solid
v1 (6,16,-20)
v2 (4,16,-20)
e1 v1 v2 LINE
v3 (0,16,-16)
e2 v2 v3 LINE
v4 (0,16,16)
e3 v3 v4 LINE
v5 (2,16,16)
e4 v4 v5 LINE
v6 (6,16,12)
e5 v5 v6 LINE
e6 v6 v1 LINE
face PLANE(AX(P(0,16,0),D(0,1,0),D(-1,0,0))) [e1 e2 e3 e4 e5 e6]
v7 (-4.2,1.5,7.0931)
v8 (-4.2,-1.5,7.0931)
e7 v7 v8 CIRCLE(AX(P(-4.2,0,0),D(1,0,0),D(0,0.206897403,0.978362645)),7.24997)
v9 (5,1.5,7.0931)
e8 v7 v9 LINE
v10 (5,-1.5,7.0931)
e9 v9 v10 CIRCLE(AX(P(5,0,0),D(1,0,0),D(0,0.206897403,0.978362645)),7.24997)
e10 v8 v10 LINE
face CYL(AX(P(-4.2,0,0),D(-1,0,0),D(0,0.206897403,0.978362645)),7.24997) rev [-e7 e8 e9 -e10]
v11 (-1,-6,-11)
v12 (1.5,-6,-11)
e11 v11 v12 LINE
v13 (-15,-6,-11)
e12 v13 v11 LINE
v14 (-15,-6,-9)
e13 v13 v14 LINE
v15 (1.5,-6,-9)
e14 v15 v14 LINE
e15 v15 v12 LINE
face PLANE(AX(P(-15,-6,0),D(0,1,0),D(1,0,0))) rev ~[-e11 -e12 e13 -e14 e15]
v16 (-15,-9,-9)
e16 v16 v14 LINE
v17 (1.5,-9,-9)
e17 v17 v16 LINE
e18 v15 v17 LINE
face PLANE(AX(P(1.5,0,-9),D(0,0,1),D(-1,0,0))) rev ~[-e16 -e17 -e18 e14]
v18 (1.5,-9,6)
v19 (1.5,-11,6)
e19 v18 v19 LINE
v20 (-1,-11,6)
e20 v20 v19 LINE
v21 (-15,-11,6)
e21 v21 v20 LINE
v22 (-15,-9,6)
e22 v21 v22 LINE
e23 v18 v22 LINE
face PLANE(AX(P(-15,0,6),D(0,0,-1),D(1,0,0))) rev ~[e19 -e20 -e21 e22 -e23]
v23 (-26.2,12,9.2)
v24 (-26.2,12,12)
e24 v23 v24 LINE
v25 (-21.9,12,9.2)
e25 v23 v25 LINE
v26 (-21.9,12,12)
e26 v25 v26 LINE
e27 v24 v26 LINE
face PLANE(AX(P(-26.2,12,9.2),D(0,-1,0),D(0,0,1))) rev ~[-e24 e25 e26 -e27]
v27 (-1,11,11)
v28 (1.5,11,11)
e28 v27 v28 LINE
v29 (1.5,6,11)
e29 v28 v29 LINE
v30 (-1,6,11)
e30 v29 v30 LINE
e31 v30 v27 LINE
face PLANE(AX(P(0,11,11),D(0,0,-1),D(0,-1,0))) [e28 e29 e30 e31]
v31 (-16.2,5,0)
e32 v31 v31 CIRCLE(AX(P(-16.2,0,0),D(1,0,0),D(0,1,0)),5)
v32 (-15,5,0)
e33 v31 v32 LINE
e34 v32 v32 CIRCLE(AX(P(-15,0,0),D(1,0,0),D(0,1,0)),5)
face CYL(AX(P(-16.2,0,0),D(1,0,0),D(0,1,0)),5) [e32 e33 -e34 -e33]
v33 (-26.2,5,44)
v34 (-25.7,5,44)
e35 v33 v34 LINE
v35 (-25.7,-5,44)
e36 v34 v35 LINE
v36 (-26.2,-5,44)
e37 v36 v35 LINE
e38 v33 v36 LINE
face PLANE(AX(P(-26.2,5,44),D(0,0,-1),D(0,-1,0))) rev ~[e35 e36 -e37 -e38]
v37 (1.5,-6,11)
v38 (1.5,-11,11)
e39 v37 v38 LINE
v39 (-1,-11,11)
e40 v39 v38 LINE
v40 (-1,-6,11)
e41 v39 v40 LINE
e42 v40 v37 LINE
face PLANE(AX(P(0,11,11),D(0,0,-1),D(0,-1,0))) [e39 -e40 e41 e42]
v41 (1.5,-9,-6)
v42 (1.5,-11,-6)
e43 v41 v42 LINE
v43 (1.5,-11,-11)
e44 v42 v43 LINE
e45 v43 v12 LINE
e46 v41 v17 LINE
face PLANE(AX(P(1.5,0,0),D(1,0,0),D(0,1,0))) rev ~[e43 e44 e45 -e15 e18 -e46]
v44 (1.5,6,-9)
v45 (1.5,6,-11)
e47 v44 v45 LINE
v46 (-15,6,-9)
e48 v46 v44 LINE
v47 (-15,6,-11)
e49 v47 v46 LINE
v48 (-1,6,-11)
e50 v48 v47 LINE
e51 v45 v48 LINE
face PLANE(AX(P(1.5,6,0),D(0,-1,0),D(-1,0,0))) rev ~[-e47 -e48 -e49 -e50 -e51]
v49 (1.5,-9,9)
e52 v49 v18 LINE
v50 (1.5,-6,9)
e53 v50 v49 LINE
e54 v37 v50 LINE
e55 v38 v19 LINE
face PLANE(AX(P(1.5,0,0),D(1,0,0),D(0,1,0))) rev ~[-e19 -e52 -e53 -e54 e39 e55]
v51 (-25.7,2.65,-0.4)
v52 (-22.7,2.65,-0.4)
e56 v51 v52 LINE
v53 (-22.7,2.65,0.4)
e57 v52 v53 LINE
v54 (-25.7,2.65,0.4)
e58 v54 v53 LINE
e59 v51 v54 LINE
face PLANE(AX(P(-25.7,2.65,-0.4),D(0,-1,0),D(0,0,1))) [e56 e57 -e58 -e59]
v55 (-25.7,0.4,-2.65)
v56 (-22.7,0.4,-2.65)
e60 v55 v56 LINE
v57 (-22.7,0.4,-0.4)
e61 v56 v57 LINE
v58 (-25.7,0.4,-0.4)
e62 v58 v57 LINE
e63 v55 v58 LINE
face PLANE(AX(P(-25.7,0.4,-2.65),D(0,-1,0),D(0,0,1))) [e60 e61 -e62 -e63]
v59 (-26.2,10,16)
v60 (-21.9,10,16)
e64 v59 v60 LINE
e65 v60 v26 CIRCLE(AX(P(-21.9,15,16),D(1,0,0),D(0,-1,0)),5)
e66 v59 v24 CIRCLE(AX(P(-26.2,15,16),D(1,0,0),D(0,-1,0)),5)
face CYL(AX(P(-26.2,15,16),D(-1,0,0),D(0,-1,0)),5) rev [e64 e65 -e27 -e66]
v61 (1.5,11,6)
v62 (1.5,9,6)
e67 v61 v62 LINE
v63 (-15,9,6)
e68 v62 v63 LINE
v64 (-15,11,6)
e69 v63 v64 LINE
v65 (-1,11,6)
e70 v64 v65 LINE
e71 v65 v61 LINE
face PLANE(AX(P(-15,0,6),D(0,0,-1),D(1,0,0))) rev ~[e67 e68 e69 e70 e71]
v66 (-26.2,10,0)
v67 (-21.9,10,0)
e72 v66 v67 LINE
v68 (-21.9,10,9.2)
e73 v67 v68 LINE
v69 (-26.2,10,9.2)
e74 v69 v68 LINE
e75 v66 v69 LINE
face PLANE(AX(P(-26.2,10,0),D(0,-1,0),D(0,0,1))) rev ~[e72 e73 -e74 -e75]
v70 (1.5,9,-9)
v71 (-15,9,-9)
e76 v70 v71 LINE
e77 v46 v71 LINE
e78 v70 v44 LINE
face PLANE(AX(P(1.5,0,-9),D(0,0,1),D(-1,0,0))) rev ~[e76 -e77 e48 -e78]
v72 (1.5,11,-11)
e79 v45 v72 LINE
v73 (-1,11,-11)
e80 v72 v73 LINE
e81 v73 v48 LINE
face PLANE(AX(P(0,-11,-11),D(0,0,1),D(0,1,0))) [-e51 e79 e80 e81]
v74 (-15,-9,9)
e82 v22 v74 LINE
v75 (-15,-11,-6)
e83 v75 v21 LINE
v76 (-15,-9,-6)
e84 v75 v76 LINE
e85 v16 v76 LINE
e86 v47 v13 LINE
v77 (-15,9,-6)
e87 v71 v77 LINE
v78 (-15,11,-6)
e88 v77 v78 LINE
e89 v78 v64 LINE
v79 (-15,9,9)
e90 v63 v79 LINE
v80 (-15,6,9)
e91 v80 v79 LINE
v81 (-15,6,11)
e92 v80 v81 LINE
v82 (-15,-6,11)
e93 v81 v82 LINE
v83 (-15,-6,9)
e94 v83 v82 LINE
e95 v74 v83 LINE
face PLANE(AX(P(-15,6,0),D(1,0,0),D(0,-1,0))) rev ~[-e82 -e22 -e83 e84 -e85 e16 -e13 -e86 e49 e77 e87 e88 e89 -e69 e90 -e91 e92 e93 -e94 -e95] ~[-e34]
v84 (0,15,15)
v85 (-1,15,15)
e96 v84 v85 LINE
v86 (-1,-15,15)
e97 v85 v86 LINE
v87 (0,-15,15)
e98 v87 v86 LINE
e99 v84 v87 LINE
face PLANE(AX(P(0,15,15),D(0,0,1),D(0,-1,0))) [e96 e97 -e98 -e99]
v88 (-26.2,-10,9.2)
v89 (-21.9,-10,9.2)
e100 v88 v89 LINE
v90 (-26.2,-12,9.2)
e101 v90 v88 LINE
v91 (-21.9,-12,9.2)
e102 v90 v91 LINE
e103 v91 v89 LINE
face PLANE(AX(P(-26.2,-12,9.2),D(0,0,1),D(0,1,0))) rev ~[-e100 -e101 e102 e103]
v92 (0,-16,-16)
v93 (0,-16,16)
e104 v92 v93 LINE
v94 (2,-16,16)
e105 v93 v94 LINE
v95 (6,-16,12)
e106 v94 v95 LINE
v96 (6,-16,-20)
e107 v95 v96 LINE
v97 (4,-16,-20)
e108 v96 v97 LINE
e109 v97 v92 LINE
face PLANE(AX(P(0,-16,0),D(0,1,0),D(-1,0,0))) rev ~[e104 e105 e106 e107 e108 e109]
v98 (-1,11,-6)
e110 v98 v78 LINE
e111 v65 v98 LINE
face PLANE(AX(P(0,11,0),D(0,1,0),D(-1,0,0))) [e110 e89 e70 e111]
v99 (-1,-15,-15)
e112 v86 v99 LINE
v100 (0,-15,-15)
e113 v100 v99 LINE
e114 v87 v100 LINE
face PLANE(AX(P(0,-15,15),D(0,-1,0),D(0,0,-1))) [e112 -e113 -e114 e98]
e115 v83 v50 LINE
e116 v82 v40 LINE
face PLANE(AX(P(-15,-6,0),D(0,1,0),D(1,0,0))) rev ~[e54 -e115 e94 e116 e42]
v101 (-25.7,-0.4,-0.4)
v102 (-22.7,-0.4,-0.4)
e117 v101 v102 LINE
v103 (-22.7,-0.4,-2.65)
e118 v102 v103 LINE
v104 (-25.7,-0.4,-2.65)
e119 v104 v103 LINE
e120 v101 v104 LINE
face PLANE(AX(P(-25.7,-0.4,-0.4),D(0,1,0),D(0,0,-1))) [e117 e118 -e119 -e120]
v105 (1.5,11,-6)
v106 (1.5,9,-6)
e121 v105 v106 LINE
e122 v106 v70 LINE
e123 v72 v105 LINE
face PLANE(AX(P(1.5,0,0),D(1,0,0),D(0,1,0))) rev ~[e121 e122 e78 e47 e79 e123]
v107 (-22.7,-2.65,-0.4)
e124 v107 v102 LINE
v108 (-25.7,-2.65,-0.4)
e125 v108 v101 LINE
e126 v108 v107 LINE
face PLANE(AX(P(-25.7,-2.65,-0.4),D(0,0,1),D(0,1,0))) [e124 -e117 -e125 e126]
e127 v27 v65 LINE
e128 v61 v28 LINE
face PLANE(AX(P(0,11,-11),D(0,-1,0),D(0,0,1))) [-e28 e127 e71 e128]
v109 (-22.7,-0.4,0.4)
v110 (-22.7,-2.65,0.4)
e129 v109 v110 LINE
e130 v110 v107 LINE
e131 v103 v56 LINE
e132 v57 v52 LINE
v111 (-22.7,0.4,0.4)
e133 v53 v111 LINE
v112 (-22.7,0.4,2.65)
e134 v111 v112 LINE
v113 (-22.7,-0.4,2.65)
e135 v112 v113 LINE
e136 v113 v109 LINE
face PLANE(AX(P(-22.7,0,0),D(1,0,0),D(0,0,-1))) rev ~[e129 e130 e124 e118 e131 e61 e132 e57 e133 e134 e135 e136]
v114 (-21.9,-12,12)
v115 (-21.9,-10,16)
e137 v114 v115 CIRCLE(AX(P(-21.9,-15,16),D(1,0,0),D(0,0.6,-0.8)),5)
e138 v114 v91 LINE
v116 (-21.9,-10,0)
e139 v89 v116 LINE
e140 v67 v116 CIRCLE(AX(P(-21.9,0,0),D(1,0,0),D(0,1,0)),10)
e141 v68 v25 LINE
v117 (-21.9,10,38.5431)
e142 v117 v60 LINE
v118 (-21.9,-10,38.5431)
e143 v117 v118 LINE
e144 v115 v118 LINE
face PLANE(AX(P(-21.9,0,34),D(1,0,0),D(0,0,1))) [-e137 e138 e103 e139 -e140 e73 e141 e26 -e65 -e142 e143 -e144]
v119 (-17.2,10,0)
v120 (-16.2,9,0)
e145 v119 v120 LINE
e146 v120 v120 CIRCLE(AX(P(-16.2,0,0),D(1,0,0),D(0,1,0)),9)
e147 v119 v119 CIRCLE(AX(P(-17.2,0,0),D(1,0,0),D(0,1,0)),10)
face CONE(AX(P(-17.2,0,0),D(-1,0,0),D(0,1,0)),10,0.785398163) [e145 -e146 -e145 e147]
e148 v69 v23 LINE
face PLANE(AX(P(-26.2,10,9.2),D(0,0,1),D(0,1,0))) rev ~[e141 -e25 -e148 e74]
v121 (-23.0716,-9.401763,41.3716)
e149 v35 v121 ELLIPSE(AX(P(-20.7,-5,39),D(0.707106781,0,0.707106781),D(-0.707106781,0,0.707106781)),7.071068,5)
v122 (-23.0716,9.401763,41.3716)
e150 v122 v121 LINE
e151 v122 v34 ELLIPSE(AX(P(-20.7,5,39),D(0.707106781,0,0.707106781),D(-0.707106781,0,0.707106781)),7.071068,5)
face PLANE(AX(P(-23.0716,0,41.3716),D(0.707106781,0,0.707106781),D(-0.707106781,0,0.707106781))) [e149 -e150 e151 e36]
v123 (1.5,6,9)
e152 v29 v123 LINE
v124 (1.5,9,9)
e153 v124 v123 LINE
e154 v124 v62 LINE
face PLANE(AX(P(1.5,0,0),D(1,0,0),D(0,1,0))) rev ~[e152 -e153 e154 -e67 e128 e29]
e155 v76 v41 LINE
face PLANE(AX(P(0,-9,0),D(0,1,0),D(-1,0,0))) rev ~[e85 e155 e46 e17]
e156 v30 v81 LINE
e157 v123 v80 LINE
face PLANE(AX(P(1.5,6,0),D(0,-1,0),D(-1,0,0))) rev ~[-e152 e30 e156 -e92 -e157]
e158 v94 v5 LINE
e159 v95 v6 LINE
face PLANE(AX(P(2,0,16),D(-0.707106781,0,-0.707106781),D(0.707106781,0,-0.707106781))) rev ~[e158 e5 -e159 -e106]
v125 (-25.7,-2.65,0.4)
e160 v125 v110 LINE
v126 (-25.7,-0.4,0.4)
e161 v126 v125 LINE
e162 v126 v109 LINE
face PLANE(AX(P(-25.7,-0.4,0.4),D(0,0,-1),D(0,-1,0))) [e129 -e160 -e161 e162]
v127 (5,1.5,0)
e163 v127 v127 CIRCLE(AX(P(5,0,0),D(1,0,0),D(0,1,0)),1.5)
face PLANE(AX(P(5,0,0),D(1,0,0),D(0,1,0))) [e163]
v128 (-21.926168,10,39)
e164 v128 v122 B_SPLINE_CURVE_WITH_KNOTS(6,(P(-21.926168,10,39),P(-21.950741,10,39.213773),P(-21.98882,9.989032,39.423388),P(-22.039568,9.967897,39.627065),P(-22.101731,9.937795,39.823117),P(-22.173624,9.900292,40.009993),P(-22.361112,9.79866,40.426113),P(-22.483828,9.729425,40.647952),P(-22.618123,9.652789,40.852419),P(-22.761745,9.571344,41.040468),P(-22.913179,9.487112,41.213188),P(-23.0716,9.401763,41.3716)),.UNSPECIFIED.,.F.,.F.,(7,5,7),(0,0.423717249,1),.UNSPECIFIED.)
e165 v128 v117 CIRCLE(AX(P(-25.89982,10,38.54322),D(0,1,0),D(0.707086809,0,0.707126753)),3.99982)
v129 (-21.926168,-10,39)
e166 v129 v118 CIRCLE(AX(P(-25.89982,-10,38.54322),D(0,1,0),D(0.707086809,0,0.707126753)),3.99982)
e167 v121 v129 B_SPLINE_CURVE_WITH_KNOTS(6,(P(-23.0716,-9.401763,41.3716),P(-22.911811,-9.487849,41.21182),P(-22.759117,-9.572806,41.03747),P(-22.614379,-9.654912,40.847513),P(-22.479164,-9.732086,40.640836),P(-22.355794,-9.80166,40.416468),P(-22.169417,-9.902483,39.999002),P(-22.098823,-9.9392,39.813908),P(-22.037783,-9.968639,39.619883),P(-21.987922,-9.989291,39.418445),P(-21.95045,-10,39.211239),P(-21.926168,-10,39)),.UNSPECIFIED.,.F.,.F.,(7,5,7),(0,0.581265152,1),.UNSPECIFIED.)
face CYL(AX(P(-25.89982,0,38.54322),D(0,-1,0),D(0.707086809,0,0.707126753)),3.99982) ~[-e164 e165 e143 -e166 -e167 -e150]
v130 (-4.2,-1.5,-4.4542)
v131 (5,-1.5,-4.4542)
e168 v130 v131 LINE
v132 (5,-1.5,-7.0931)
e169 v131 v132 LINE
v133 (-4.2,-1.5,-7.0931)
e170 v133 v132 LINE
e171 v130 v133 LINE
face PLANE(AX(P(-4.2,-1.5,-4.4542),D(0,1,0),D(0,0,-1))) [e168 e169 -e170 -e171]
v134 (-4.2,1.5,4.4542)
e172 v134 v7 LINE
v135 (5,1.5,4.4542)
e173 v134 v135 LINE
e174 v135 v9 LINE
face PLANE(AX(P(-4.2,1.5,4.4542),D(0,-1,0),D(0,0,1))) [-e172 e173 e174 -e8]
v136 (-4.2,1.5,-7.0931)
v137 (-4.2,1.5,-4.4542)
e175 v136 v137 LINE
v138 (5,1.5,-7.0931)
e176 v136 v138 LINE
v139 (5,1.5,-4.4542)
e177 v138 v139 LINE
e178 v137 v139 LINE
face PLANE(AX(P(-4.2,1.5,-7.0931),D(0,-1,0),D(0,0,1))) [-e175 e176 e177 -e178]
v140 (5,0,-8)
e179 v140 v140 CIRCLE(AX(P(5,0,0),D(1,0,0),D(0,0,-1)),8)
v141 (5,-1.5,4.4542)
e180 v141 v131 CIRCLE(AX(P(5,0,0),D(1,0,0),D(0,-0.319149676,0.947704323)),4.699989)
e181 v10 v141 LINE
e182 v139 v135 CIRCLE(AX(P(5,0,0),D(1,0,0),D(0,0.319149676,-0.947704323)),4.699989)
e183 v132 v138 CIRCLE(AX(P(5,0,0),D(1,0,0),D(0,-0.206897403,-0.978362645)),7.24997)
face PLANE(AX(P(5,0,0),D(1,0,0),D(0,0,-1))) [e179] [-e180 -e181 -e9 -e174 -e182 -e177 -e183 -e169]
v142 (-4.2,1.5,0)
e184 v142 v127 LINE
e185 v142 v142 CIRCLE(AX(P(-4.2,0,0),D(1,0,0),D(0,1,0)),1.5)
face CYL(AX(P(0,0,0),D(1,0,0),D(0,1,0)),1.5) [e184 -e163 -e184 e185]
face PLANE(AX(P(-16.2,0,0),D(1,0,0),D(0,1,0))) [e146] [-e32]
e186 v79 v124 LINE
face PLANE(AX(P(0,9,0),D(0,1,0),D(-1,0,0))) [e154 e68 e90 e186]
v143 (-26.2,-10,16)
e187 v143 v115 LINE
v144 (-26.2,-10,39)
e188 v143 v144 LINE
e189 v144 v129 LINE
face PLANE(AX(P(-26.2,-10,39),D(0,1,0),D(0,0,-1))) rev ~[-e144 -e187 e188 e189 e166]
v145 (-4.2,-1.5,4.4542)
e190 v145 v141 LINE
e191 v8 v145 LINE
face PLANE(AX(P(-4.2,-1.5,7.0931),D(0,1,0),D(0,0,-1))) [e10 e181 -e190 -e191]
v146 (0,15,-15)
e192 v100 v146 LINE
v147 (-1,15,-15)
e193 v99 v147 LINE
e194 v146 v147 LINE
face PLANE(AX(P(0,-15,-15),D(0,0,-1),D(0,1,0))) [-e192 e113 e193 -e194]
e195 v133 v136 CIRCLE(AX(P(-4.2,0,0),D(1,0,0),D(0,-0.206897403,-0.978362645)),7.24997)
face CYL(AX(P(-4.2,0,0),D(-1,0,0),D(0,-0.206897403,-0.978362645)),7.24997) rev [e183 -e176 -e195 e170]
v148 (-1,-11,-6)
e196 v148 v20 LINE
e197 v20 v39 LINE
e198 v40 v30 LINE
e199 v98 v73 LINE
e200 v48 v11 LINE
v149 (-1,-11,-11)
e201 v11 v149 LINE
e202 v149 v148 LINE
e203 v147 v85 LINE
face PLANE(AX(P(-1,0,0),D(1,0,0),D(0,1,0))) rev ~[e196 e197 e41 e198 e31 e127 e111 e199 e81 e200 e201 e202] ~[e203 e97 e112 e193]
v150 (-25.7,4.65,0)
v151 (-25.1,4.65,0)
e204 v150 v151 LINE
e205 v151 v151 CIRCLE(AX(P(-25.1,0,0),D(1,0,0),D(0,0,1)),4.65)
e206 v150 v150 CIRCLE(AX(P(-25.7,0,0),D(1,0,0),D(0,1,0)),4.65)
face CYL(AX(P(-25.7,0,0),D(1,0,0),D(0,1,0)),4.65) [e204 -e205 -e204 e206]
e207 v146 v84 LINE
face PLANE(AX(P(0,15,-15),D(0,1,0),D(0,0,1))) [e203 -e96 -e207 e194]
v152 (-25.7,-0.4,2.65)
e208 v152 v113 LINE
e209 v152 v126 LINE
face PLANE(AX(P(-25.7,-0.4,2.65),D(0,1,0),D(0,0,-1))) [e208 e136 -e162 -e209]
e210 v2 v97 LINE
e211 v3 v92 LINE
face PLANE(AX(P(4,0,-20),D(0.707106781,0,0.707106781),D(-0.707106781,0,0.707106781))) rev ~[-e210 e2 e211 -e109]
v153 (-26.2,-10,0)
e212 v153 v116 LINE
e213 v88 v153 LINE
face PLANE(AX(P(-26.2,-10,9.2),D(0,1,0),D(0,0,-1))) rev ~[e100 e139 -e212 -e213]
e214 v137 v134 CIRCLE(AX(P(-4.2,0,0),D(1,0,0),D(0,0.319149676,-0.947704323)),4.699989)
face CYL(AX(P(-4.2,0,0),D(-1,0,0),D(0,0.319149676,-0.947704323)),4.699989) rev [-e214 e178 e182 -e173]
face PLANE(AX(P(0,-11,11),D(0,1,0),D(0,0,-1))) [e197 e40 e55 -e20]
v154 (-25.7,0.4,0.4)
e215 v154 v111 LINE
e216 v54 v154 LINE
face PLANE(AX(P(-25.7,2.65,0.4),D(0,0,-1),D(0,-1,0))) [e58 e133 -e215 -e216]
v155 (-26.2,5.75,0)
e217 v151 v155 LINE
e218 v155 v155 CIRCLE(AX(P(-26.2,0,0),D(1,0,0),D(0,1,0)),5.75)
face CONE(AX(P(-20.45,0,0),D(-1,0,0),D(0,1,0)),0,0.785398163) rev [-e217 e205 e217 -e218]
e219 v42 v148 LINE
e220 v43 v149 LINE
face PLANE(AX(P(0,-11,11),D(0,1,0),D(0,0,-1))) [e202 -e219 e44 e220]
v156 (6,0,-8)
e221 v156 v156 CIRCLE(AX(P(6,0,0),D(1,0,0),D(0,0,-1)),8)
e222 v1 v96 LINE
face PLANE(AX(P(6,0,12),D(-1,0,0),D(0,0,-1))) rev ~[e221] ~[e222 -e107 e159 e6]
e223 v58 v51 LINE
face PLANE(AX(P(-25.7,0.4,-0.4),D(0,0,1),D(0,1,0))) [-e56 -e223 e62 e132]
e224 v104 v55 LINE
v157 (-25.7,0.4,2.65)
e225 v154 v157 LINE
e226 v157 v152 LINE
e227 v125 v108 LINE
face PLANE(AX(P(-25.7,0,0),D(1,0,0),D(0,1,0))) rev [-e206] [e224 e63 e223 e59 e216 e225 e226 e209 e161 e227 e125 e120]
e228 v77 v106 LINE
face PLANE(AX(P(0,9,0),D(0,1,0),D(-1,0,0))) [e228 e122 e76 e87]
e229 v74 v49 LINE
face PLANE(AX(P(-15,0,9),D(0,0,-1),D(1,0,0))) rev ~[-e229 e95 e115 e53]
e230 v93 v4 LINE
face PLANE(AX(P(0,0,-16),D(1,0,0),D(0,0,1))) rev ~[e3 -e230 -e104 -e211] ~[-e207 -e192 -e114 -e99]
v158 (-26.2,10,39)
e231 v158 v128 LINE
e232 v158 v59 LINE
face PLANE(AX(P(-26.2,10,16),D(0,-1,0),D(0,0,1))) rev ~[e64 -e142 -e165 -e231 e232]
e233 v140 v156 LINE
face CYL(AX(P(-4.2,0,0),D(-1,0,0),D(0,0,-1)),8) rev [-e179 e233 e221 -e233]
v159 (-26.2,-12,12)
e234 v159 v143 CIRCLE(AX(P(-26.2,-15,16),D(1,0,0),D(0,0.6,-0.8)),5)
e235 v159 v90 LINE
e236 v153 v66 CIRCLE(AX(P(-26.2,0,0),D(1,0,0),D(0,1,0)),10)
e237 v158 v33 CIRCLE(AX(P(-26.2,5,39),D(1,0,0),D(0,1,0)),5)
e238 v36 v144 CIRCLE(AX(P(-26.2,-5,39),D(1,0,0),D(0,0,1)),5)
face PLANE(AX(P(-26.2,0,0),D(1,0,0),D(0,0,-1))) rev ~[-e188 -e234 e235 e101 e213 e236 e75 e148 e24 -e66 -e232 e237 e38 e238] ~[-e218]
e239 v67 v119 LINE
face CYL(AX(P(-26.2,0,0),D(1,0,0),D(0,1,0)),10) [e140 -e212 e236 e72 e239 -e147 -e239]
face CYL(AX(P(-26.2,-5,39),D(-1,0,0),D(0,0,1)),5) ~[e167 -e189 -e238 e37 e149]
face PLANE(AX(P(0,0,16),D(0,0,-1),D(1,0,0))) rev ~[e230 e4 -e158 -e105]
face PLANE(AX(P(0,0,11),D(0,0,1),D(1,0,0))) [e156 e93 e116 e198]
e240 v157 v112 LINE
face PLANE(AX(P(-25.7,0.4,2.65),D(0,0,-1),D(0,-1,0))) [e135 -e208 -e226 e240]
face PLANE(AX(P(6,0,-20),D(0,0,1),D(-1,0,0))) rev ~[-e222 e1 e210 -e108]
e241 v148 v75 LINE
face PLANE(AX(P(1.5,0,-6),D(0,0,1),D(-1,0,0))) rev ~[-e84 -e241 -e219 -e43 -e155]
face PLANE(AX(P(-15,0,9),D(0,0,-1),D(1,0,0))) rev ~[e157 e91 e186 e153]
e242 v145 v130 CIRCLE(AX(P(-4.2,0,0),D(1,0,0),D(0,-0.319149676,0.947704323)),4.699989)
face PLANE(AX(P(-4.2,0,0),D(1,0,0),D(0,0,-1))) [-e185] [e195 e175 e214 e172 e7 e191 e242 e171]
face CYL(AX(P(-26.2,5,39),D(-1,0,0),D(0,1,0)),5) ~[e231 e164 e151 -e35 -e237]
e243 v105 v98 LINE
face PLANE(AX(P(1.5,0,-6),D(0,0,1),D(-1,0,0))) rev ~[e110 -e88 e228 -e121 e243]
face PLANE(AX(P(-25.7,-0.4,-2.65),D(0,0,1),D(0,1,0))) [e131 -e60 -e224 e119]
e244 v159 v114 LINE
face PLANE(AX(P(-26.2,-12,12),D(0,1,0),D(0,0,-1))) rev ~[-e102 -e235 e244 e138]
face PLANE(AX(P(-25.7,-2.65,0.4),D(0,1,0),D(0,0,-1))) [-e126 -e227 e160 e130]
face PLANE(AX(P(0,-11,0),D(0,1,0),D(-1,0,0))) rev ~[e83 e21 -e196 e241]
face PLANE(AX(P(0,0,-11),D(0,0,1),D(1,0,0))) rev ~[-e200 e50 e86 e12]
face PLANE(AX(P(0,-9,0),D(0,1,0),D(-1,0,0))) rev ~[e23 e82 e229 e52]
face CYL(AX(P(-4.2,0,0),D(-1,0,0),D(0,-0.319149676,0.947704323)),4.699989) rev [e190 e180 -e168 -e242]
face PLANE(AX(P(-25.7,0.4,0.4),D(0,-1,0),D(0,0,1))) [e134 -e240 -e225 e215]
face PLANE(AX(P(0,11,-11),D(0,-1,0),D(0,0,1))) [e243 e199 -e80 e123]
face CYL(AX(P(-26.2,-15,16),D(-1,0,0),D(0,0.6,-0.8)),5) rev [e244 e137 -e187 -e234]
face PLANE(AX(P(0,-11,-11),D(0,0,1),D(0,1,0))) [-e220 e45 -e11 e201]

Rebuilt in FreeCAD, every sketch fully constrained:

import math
import FreeCAD as App
import Part
import Sketcher
Q = App.Units.Quantity


def add_polygon(sketch, points):
    """Adds a closed chain of lines whose ends are joined by coincident constraints."""
    first, n = sketch.GeometryCount, len(points)
    for a, b in zip(points, points[1:] + points[:1]):
        sketch.addGeometry(Part.LineSegment(App.Vector(*a, 0), App.Vector(*b, 0)), False)
    for i in range(n):
        sketch.addConstraint(Sketcher.Constraint("Coincident", first + i, 2, first + (i + 1) % n, 1))

doc = App.newDocument("Part")
params = doc.addObject("Spreadsheet::Sheet", "Params")
for row, (alias, value) in enumerate([
    ("sketch1_width", "2 mm"),
    ("sketch1_height", "32 mm"),
    ("pad1_length", "32 mm"),
    ("sketch2_width", "30 mm"),
    ("pad2_length", "1 mm"),
    ("sketch3_width", "22 mm"),
    ("pocket1_length", "3 mm"),
    ("sketch4_height", "18 mm"),
    ("sketch4_width", "16.5 mm"),
    ("pad3_length", "18 mm"),
    ("sketch5_height", "12 mm"),
    ("sketch5_width", "16.5 mm"),
    ("pad4_length", "22 mm"),
    ("sketch6_height", "12 mm"),
    ("sketch6_width", "16.5 mm"),
    ("pad5_length", "22 mm"),
    ("sketch7_width", "9 mm"),
    ("sketch7_height", "5 mm"),
    ("sketch7_height2", "4 mm"),
    ("sketch7_width2", "1.2 mm"),
    ("sketch7_width3", "5.45 mm"),
    ("revolution_angle", "360 deg"),
    ("sketch8_width", "5.3 mm"),
    ("sketch8_width2", "0.65 mm"),
    ("revolution2_angle", "360 deg"),
    ("sketch9_width", "0.8 mm"),
    ("sketch9_width2", "2.25 mm"),
    ("pocket2_length", "3 mm"),
    ("sketch10_radius", "5 mm"),
    ("sketch10_radius2", "6 mm"),
    ("sketch10_width", "10 mm"),
    ("sketch10_width2", "2 mm"),
    ("sketch10_height", "23 mm"),
    ("pad6_length", "4.3 mm"),
    ("sketch11_radius", "4 mm"),
    ("sketch11_width", "10 mm"),
    ("sketch11_height", "15 mm"),
    ("sketch11_width2", "1.8 mm"),
    ("sketch11_width3", "3.9 mm"),
    ("pocket3_length", "20 mm"),
    ("sketch12_diameter", "16 mm"),
    ("pocket4_length", "10.2 mm"),
    ("sketch13_diameter", "16 mm"),
    ("sketch13_radius", "4.7 mm"),
    ("sketch13_radius2", "7.25 mm"),
    ("pad7_length", "9.2 mm"),
    ("sketch14_diameter", "3 mm"),
    ("pad8_length", "10 mm"),
], start=1):
    params.set(f"A{row}", alias)
    params.set(f"B{row}", "=" + value)
    params.setAlias(f"B{row}", alias)

body = doc.addObject("PartDesign::Body", "Body")

sketch1 = doc.addObject("Sketcher::SketchObject", "Sketch")
body.addObject(sketch1)
sketch1.AttachmentSupport = (doc.XZ_Plane, [""])
sketch1.MapMode = "FlatFace"
add_polygon(sketch1, [(0, -16), (0, 16), (2, 16), (6, 12), (6, -20), (4, -20)])
sketch1.addConstraint([
    Sketcher.Constraint("Vertical", 0),
    Sketcher.Constraint("Horizontal", 1),
    Sketcher.Constraint("Vertical", 3),
    Sketcher.Constraint("Horizontal", 4),
    Sketcher.Constraint("Symmetric", 0, 2, 5, 2, -1, 1),
    Sketcher.Constraint("Parallel", 2, 5),
    Sketcher.Constraint("Equal", 1, 4),
    Sketcher.Constraint("DistanceX", 1, 1, 1, 2, Q("2 mm")),
    Sketcher.Constraint("DistanceY", 0, 1, 0, 2, Q("32 mm")),
    Sketcher.Constraint("Angle", 2, Q("-45 deg")),
    Sketcher.Constraint("DistanceX", -1, 1, 2, 2, Q("6 mm")),
])
sketch1.setExpression("Constraints[13]", "Params.sketch1_width")
sketch1.setExpression("Constraints[14]", "Params.sketch1_height")
pad1 = doc.addObject("PartDesign::Pad", "Pad")
body.addObject(pad1)
pad1.Profile = sketch1
pad1.setExpression("Length", "Params.pad1_length")
pad1.Midplane = True

sketch2 = doc.addObject("Sketcher::SketchObject", "Sketch001")
body.addObject(sketch2)
sketch2.AttachmentSupport = (doc.YZ_Plane, [""])
sketch2.MapMode = "FlatFace"
add_polygon(sketch2, [(15, -15), (15, 15), (-15, 15), (-15, -15)])
sketch2.addConstraint([
    Sketcher.Constraint("Vertical", 0),
    Sketcher.Constraint("Horizontal", 1),
    Sketcher.Constraint("Vertical", 2),
    Sketcher.Constraint("Horizontal", 3),
    Sketcher.Constraint("Symmetric", 0, 2, 2, 2, -1, 1),
    Sketcher.Constraint("Equal", 3, 0),
    Sketcher.Constraint("DistanceX", 1, 2, 1, 1, Q("30 mm")),
])
sketch2.setExpression("Constraints[10]", "Params.sketch2_width")
pad2 = doc.addObject("PartDesign::Pad", "Pad001")
body.addObject(pad2)
pad2.Profile = sketch2
pad2.setExpression("Length", "Params.pad2_length")
pad2.Reversed = True

sketch3 = doc.addObject("Sketcher::SketchObject", "Sketch002")
body.addObject(sketch3)
sketch3.AttachmentSupport = (doc.YZ_Plane, [""])
sketch3.MapMode = "FlatFace"
add_polygon(sketch3, [(11, -11), (11, 11), (-11, 11), (-11, -11)])
sketch3.addConstraint([
    Sketcher.Constraint("Vertical", 0),
    Sketcher.Constraint("Horizontal", 1),
    Sketcher.Constraint("Vertical", 2),
    Sketcher.Constraint("Horizontal", 3),
    Sketcher.Constraint("Symmetric", 0, 2, 2, 2, -1, 1),
    Sketcher.Constraint("Equal", 3, 0),
    Sketcher.Constraint("DistanceX", 1, 2, 1, 1, Q("22 mm")),
])
sketch3.setExpression("Constraints[10]", "Params.sketch3_width")
pocket1 = doc.addObject("PartDesign::Pocket", "Pocket")
body.addObject(pocket1)
pocket1.Profile = sketch3
pocket1.setExpression("Length", "Params.pocket1_length")
pocket1.Midplane = True

sketch4 = doc.addObject("Sketcher::SketchObject", "Sketch003")
body.addObject(sketch4)
sketch4.AttachmentSupport = (doc.XZ_Plane, [""])
sketch4.MapMode = "FlatFace"
add_polygon(sketch4, [(2, -9), (-15, -9), (-15, 9), (2, 9)])
sketch4.addConstraint([
    Sketcher.Constraint("Horizontal", 0),
    Sketcher.Constraint("Vertical", 1),
    Sketcher.Constraint("Horizontal", 2),
    Sketcher.Constraint("Vertical", 3),
    Sketcher.Constraint("DistanceY", 1, 1, 1, 2, Q("18 mm")),
    Sketcher.Constraint("DistanceX", 0, 2, 0, 1, Q("16.5 mm")),
    Sketcher.Constraint("DistanceX", 0, 2, -1, 1, Q("15 mm")),
    Sketcher.Constraint("DistanceY", 0, 2, -1, 1, Q("9 mm")),
])
sketch4.setExpression("Constraints[8]", "Params.sketch4_height")
sketch4.setExpression("Constraints[9]", "Params.sketch4_width")
pad3 = doc.addObject("PartDesign::Pad", "Pad002")
body.addObject(pad3)
pad3.Profile = sketch4
pad3.setExpression("Length", "Params.pad3_length")
pad3.Midplane = True

sketch5 = doc.addObject("Sketcher::SketchObject", "Sketch004")
body.addObject(sketch5)
sketch5.AttachmentSupport = (doc.XZ_Plane, [""])
sketch5.MapMode = "FlatFace"
add_polygon(sketch5, [(2, -6), (-15, -6), (-15, 6), (2, 6)])
sketch5.addConstraint([
    Sketcher.Constraint("Horizontal", 0),
    Sketcher.Constraint("Vertical", 1),
    Sketcher.Constraint("Horizontal", 2),
    Sketcher.Constraint("Vertical", 3),
    Sketcher.Constraint("DistanceY", 1, 1, 1, 2, Q("12 mm")),
    Sketcher.Constraint("DistanceX", 0, 2, 0, 1, Q("16.5 mm")),
    Sketcher.Constraint("DistanceX", 0, 2, -1, 1, Q("15 mm")),
    Sketcher.Constraint("DistanceY", 0, 2, -1, 1, Q("6 mm")),
])
sketch5.setExpression("Constraints[8]", "Params.sketch5_height")
sketch5.setExpression("Constraints[9]", "Params.sketch5_width")
pad4 = doc.addObject("PartDesign::Pad", "Pad003")
body.addObject(pad4)
pad4.Profile = sketch5
pad4.setExpression("Length", "Params.pad4_length")
pad4.Midplane = True

sketch6 = doc.addObject("Sketcher::SketchObject", "Sketch005")
body.addObject(sketch6)
sketch6.AttachmentSupport = (doc.XY_Plane, [""])
sketch6.MapMode = "FlatFace"
add_polygon(sketch6, [(2, 6), (-15, 6), (-15, -6), (2, -6)])
sketch6.addConstraint([
    Sketcher.Constraint("Horizontal", 0),
    Sketcher.Constraint("Vertical", 1),
    Sketcher.Constraint("Horizontal", 2),
    Sketcher.Constraint("Vertical", 3),
    Sketcher.Constraint("DistanceY", 1, 2, 1, 1, Q("12 mm")),
    Sketcher.Constraint("DistanceX", 0, 2, 0, 1, Q("16.5 mm")),
    Sketcher.Constraint("DistanceX", 0, 2, -1, 1, Q("15 mm")),
    Sketcher.Constraint("DistanceY", -1, 1, 0, 2, Q("6 mm")),
])
sketch6.setExpression("Constraints[8]", "Params.sketch6_height")
sketch6.setExpression("Constraints[9]", "Params.sketch6_width")
pad5 = doc.addObject("PartDesign::Pad", "Pad004")
body.addObject(pad5)
pad5.Profile = sketch6
pad5.setExpression("Length", "Params.pad5_length")
pad5.Midplane = True

sketch7 = doc.addObject("Sketcher::SketchObject", "Sketch006")
body.addObject(sketch7)
sketch7.AttachmentSupport = (doc.XY_Plane, [""])
sketch7.MapMode = "FlatFace"
add_polygon(sketch7, [(-20.4, 0), (-15, 0), (-15, 5), (-16.2, 5), (-16.2, 9), (-17.2, 10), (-26.2, 10), (-26.2, 5.8)])
sketch7.addConstraint([
    Sketcher.Constraint("Horizontal", 0),
    Sketcher.Constraint("Vertical", 1),
    Sketcher.Constraint("Horizontal", 2),
    Sketcher.Constraint("Vertical", 3),
    Sketcher.Constraint("Horizontal", 5),
    Sketcher.Constraint("Vertical", 6),
    Sketcher.Constraint("PointOnObject", 0, 2, -1),
    Sketcher.Constraint("Parallel", 4, 7),
    Sketcher.Constraint("DistanceX", 5, 2, 5, 1, Q("9 mm")),
    Sketcher.Constraint("DistanceY", 1, 1, 1, 2, Q("5 mm")),
    Sketcher.Constraint("DistanceY", 3, 1, 3, 2, Q("4 mm")),
    Sketcher.Constraint("Angle", 4, Q("135 deg")),
    Sketcher.Constraint("DistanceX", 2, 2, 2, 1, Q("1.2 mm")),
    Sketcher.Constraint("DistanceX", 0, 2, -1, 1, Q("15 mm")),
    Sketcher.Constraint("DistanceY", -1, 1, 4, 2, Q("10 mm")),
    Sketcher.Constraint("DistanceX", 0, 1, 0, 2, Q("5.45 mm")),
])
sketch7.setExpression("Constraints[16]", "Params.sketch7_width")
sketch7.setExpression("Constraints[17]", "Params.sketch7_height")
sketch7.setExpression("Constraints[18]", "Params.sketch7_height2")
sketch7.setExpression("Constraints[20]", "Params.sketch7_width2")
sketch7.setExpression("Constraints[23]", "Params.sketch7_width3")
revolution = doc.addObject("PartDesign::Revolution", "Revolution")
body.addObject(revolution)
revolution.Profile = sketch7
revolution.ReferenceAxis = (sketch7, ["H_Axis"])
revolution.setExpression("Angle", "Params.revolution_angle")

sketch8 = doc.addObject("Sketcher::SketchObject", "Sketch007")
body.addObject(sketch8)
sketch8.AttachmentSupport = (doc.XY_Plane, [""])
sketch8.MapMode = "FlatFace"
add_polygon(sketch8, [(-25.7, 0), (-20.4, 0), (-25.1, 4.7), (-25.7, 4.7)])
sketch8.addConstraint([
    Sketcher.Constraint("Horizontal", 0),
    Sketcher.Constraint("Horizontal", 2),
    Sketcher.Constraint("Vertical", 3),
    Sketcher.Constraint("PointOnObject", 0, 2, -1),
    Sketcher.Constraint("Angle", 1, Q("135 deg")),
    Sketcher.Constraint("DistanceX", 0, 1, 0, 2, Q("5.3 mm")),
    Sketcher.Constraint("DistanceX", 2, 2, 2, 1, Q("0.65 mm")),
    Sketcher.Constraint("DistanceX", 0, 2, -1, 1, Q("20.4 mm")),
])
sketch8.setExpression("Constraints[9]", "Params.sketch8_width")
sketch8.setExpression("Constraints[10]", "Params.sketch8_width2")
revolution2 = doc.addObject("PartDesign::Revolution", "Revolution001")
body.addObject(revolution2)
revolution2.Profile = sketch8
revolution2.ReferenceAxis = (sketch8, ["H_Axis"])
revolution2.setExpression("Angle", "Params.revolution2_angle")

sketch9 = doc.addObject("Sketcher::SketchObject", "Sketch008")
body.addObject(sketch9)
sketch9.AttachmentSupport = (doc.YZ_Plane, [""])
sketch9.MapMode = "FlatFace"
sketch9.AttachmentOffset = App.Placement(App.Vector(0, 0, -25.7), App.Rotation())
add_polygon(sketch9, [(0.4, 0.4), (0.4, 2.6), (-0.4, 2.6), (-0.4, 0.4), (-2.6, 0.4), (-2.6, -0.4), (-0.4, -0.4), (-0.4, -2.6), (0.4, -2.6), (0.4, -0.4), (2.6, -0.4), (2.6, 0.4)])
sketch9.addConstraint([
    Sketcher.Constraint("Vertical", 0),
    Sketcher.Constraint("Horizontal", 1),
    Sketcher.Constraint("Vertical", 2),
    Sketcher.Constraint("Horizontal", 3),
    Sketcher.Constraint("Vertical", 4),
    Sketcher.Constraint("Horizontal", 5),
    Sketcher.Constraint("Vertical", 6),
    Sketcher.Constraint("Horizontal", 7),
    Sketcher.Constraint("Vertical", 8),
    Sketcher.Constraint("Horizontal", 9),
    Sketcher.Constraint("Vertical", 10),
    Sketcher.Constraint("Horizontal", 11),
    Sketcher.Constraint("Symmetric", 0, 2, 6, 2, -1, 1),
    Sketcher.Constraint("Symmetric", 2, 2, 8, 2, -1, 1),
    Sketcher.Constraint("Symmetric", 4, 2, 10, 2, -1, 1),
    Sketcher.Constraint("Symmetric", 5, 2, 8, 2, -2),
    Sketcher.Constraint("Equal", 11, 0),
    Sketcher.Constraint("Equal", 7, 4),
    Sketcher.Constraint("DistanceX", 1, 2, 1, 1, Q("0.8 mm")),
    Sketcher.Constraint("DistanceX", 3, 2, 3, 1, Q("2.25 mm")),
])
sketch9.setExpression("Constraints[30]", "Params.sketch9_width")
sketch9.setExpression("Constraints[31]", "Params.sketch9_width2")
pocket2 = doc.addObject("PartDesign::Pocket", "Pocket001")
body.addObject(pocket2)
pocket2.Profile = sketch9
pocket2.setExpression("Length", "Params.pocket2_length")
pocket2.Reversed = True

sketch10 = doc.addObject("Sketcher::SketchObject", "Sketch009")
body.addObject(sketch10)
sketch10.AttachmentSupport = (doc.YZ_Plane, [""])
sketch10.MapMode = "FlatFace"
sketch10.AttachmentOffset = App.Placement(App.Vector(0, 0, -26.2), App.Rotation())
sketch10.addGeometry([
    Part.LineSegment(App.Vector(5, 44, 0), App.Vector(-5, 44, 0)),
    Part.ArcOfCircle(Part.Circle(App.Vector(-5, 39, 0), App.Vector(0, 0, 1), 5), math.radians(90), math.radians(180)),
    Part.LineSegment(App.Vector(-10, 39, 0), App.Vector(-10, 16, 0)),
    Part.ArcOfCircle(Part.Circle(App.Vector(-15, 16, 0), App.Vector(0, 0, 1), 5), math.radians(-53), math.radians(0)),
    Part.LineSegment(App.Vector(-12, 12, 0), App.Vector(-12, 9.2, 0)),
    Part.LineSegment(App.Vector(-12, 9.2, 0), App.Vector(-10, 9.2, 0)),
    Part.LineSegment(App.Vector(-10, 9.2, 0), App.Vector(-10, 0, 0)),
    Part.LineSegment(App.Vector(-10, 0, 0), App.Vector(-6, 0, 0)),
    Part.ArcOfCircle(Part.Circle(App.Vector(0, 0, 0), App.Vector(0, 0, 1), 6), math.radians(0), math.radians(180)),
    Part.LineSegment(App.Vector(6, 0, 0), App.Vector(10, 0, 0)),
    Part.LineSegment(App.Vector(10, 0, 0), App.Vector(10, 9.2, 0)),
    Part.LineSegment(App.Vector(10, 9.2, 0), App.Vector(12, 9.2, 0)),
    Part.LineSegment(App.Vector(12, 9.2, 0), App.Vector(12, 12, 0)),
    Part.ArcOfCircle(Part.Circle(App.Vector(15, 16, 0), App.Vector(0, 0, 1), 5), math.radians(180), math.radians(233)),
    Part.LineSegment(App.Vector(10, 16, 0), App.Vector(10, 39, 0)),
    Part.ArcOfCircle(Part.Circle(App.Vector(5, 39, 0), App.Vector(0, 0, 1), 5), math.radians(0), math.radians(90)),
], False)
sketch10.addConstraint([
    Sketcher.Constraint("Tangent", 0, 2, 1, 1),
    Sketcher.Constraint("Tangent", 1, 2, 2, 1),
    Sketcher.Constraint("Tangent", 2, 2, 3, 2),
    Sketcher.Constraint("Coincident", 3, 1, 4, 1),
    Sketcher.Constraint("Coincident", 4, 2, 5, 1),
    Sketcher.Constraint("Coincident", 5, 2, 6, 1),
    Sketcher.Constraint("Coincident", 6, 2, 7, 1),
    Sketcher.Constraint("Coincident", 7, 2, 8, 2),
    Sketcher.Constraint("Coincident", 8, 1, 9, 1),
    Sketcher.Constraint("Coincident", 9, 2, 10, 1),
    Sketcher.Constraint("Coincident", 10, 2, 11, 1),
    Sketcher.Constraint("Coincident", 11, 2, 12, 1),
    Sketcher.Constraint("Coincident", 12, 2, 13, 2),
    Sketcher.Constraint("Tangent", 13, 1, 14, 1),
    Sketcher.Constraint("Tangent", 14, 2, 15, 1),
    Sketcher.Constraint("Tangent", 15, 2, 0, 1),
    Sketcher.Constraint("Horizontal", 0),
    Sketcher.Constraint("Vertical", 2),
    Sketcher.Constraint("Vertical", 4),
    Sketcher.Constraint("Horizontal", 5),
    Sketcher.Constraint("Vertical", 6),
    Sketcher.Constraint("Horizontal", 7),
    Sketcher.Constraint("Horizontal", 9),
    Sketcher.Constraint("Vertical", 10),
    Sketcher.Constraint("Horizontal", 11),
    Sketcher.Constraint("Vertical", 12),
    Sketcher.Constraint("Vertical", 14),
    Sketcher.Constraint("Coincident", 8, 3, -1, 1),
    Sketcher.Constraint("Equal", 1, 3),
    Sketcher.Constraint("Equal", 3, 13),
    Sketcher.Constraint("Equal", 13, 15),
    Sketcher.Constraint("Symmetric", 6, 2, 9, 2, -1, 1),
    Sketcher.Constraint("Symmetric", 3, 3, 13, 3, -2),
    Sketcher.Constraint("Symmetric", 4, 2, 11, 2, -2),
    Sketcher.Constraint("PointOnObject", 6, 2, -1),
    Sketcher.Constraint("Vertical", 2, 2, 5, 2),
    Sketcher.Constraint("Radius", 1, Q("5 mm")),
    Sketcher.Constraint("Radius", 8, Q("6 mm")),
    Sketcher.Constraint("DistanceX", 0, 2, 0, 1, Q("10 mm")),
    Sketcher.Constraint("DistanceX", 5, 1, 5, 2, Q("2 mm")),
    Sketcher.Constraint("DistanceY", 2, 2, 2, 1, Q("23 mm")),
    Sketcher.Constraint("DistanceY", 4, 2, 4, 1, Q("2.8 mm")),
    Sketcher.Constraint("DistanceY", 6, 2, 6, 1, Q("9.2 mm")),
])
sketch10.setExpression("Constraints[36]", "Params.sketch10_radius")
sketch10.setExpression("Constraints[37]", "Params.sketch10_radius2")
sketch10.setExpression("Constraints[38]", "Params.sketch10_width")
sketch10.setExpression("Constraints[39]", "Params.sketch10_width2")
sketch10.setExpression("Constraints[40]", "Params.sketch10_height")
pad6 = doc.addObject("PartDesign::Pad", "Pad005")
body.addObject(pad6)
pad6.Profile = sketch10
pad6.setExpression("Length", "Params.pad6_length")

sketch11 = doc.addObject("Sketcher::SketchObject", "Sketch010")
body.addObject(sketch11)
sketch11.AttachmentSupport = (doc.XZ_Plane, [""])
sketch11.MapMode = "FlatFace"
sketch11.addGeometry([
    Part.LineSegment(App.Vector(-26.2, 34, 0), App.Vector(-28, 34, 0)),
    Part.LineSegment(App.Vector(-28, 34, 0), App.Vector(-28, 49, 0)),
    Part.LineSegment(App.Vector(-28, 49, 0), App.Vector(-18, 49, 0)),
    Part.LineSegment(App.Vector(-18, 49, 0), App.Vector(-18, 34, 0)),
    Part.LineSegment(App.Vector(-18, 34, 0), App.Vector(-21.9, 34, 0)),
    Part.LineSegment(App.Vector(-21.9, 34, 0), App.Vector(-21.9, 38.5, 0)),
    Part.ArcOfCircle(Part.Circle(App.Vector(-25.9, 38.5, 0), App.Vector(0, 0, 1), 4), math.radians(0), math.radians(45)),
    Part.LineSegment(App.Vector(-23.1, 41.4, 0), App.Vector(-25.7, 44, 0)),
    Part.LineSegment(App.Vector(-25.7, 44, 0), App.Vector(-26.2, 44, 0)),
    Part.LineSegment(App.Vector(-26.2, 44, 0), App.Vector(-26.2, 34, 0)),
], False)
sketch11.addConstraint([
    Sketcher.Constraint("Coincident", 0, 2, 1, 1),
    Sketcher.Constraint("Coincident", 1, 2, 2, 1),
    Sketcher.Constraint("Coincident", 2, 2, 3, 1),
    Sketcher.Constraint("Coincident", 3, 2, 4, 1),
    Sketcher.Constraint("Coincident", 4, 2, 5, 1),
    Sketcher.Constraint("Tangent", 5, 2, 6, 1),
    Sketcher.Constraint("Tangent", 6, 2, 7, 1),
    Sketcher.Constraint("Coincident", 7, 2, 8, 1),
    Sketcher.Constraint("Coincident", 8, 2, 9, 1),
    Sketcher.Constraint("Coincident", 9, 2, 0, 1),
    Sketcher.Constraint("Horizontal", 0),
    Sketcher.Constraint("Vertical", 1),
    Sketcher.Constraint("Horizontal", 2),
    Sketcher.Constraint("Vertical", 3),
    Sketcher.Constraint("Horizontal", 4),
    Sketcher.Constraint("Vertical", 5),
    Sketcher.Constraint("Horizontal", 8),
    Sketcher.Constraint("Vertical", 9),
    Sketcher.Constraint("Horizontal", 0, 2, 3, 2),
    Sketcher.Constraint("Equal", 2, 9),
    Sketcher.Constraint("Radius", 6, Q("4 mm")),
    Sketcher.Constraint("DistanceX", 2, 1, 2, 2, Q("10 mm")),
    Sketcher.Constraint("DistanceY", 1, 1, 1, 2, Q("15 mm")),
    Sketcher.Constraint("Angle", 7, Q("135 deg")),
    Sketcher.Constraint("DistanceX", 0, 2, 0, 1, Q("1.8 mm")),
    Sketcher.Constraint("DistanceX", 4, 2, 4, 1, Q("3.9 mm")),
    Sketcher.Constraint("DistanceX", 8, 2, 8, 1, Q("0.5 mm")),
    Sketcher.Constraint("DistanceX", 0, 2, -1, 1, Q("28 mm")),
    Sketcher.Constraint("DistanceY", -1, 1, 0, 2, Q("34 mm")),
])
sketch11.setExpression("Constraints[20]", "Params.sketch11_radius")
sketch11.setExpression("Constraints[21]", "Params.sketch11_width")
sketch11.setExpression("Constraints[22]", "Params.sketch11_height")
sketch11.setExpression("Constraints[24]", "Params.sketch11_width2")
sketch11.setExpression("Constraints[25]", "Params.sketch11_width3")
pocket3 = doc.addObject("PartDesign::Pocket", "Pocket002")
body.addObject(pocket3)
pocket3.Profile = sketch11
pocket3.setExpression("Length", "Params.pocket3_length")
pocket3.Midplane = True

sketch12 = doc.addObject("Sketcher::SketchObject", "Sketch011")
body.addObject(sketch12)
sketch12.AttachmentSupport = (doc.YZ_Plane, [""])
sketch12.MapMode = "FlatFace"
sketch12.AttachmentOffset = App.Placement(App.Vector(0, 0, -4.2), App.Rotation())
sketch12.addGeometry(Part.Circle(App.Vector(0, 0, 0), App.Vector(0, 0, 1), 8), False)
sketch12.addConstraint([
    Sketcher.Constraint("Coincident", 0, 3, -1, 1),
    Sketcher.Constraint("Diameter", 0, Q("16 mm")),
])
sketch12.setExpression("Constraints[1]", "Params.sketch12_diameter")
pocket4 = doc.addObject("PartDesign::Pocket", "Pocket003")
body.addObject(pocket4)
pocket4.Profile = sketch12
pocket4.setExpression("Length", "Params.pocket4_length")
pocket4.Reversed = True

sketch13 = doc.addObject("Sketcher::SketchObject", "Sketch012")
body.addObject(sketch13)
sketch13.AttachmentSupport = (doc.YZ_Plane, [""])
sketch13.MapMode = "FlatFace"
sketch13.AttachmentOffset = App.Placement(App.Vector(0, 0, -4.2), App.Rotation())
sketch13.addGeometry([
    Part.Circle(App.Vector(0, 0, 0), App.Vector(0, 0, 1), 8),
    Part.ArcOfCircle(Part.Circle(App.Vector(0, 0, 0), App.Vector(0, 0, 1), 7.2), math.radians(78), math.radians(102)),
    Part.LineSegment(App.Vector(1.5, 7.1, 0), App.Vector(1.5, 4.5, 0)),
    Part.ArcOfCircle(Part.Circle(App.Vector(0, 0, 0), App.Vector(0, 0, 1), 4.7), math.radians(-71), math.radians(71)),
    Part.LineSegment(App.Vector(1.5, -4.5, 0), App.Vector(1.5, -7.1, 0)),
    Part.ArcOfCircle(Part.Circle(App.Vector(0, 0, 0), App.Vector(0, 0, 1), 7.2), math.radians(-102), math.radians(-78)),
    Part.LineSegment(App.Vector(-1.5, -7.1, 0), App.Vector(-1.5, -4.5, 0)),
    Part.ArcOfCircle(Part.Circle(App.Vector(0, 0, 0), App.Vector(0, 0, 1), 4.7), math.radians(109), math.radians(251)),
    Part.LineSegment(App.Vector(-1.5, 4.5, 0), App.Vector(-1.5, 7.1, 0)),
], False)
sketch13.addConstraint([
    Sketcher.Constraint("Coincident", 1, 1, 2, 1),
    Sketcher.Constraint("Coincident", 2, 2, 3, 2),
    Sketcher.Constraint("Coincident", 3, 1, 4, 1),
    Sketcher.Constraint("Coincident", 4, 2, 5, 2),
    Sketcher.Constraint("Coincident", 5, 1, 6, 1),
    Sketcher.Constraint("Coincident", 6, 2, 7, 2),
    Sketcher.Constraint("Coincident", 7, 1, 8, 1),
    Sketcher.Constraint("Coincident", 8, 2, 1, 2),
    Sketcher.Constraint("Vertical", 2),
    Sketcher.Constraint("Vertical", 4),
    Sketcher.Constraint("Vertical", 6),
    Sketcher.Constraint("Vertical", 8),
    Sketcher.Constraint("Coincident", 0, 3, -1, 1),
    Sketcher.Constraint("Coincident", 1, 3, -1, 1),
    Sketcher.Constraint("Coincident", 3, 3, -1, 1),
    Sketcher.Constraint("Coincident", 5, 3, -1, 1),
    Sketcher.Constraint("Coincident", 7, 3, -1, 1),
    Sketcher.Constraint("Equal", 1, 5),
    Sketcher.Constraint("Equal", 3, 7),
    Sketcher.Constraint("Horizontal", 4, 2, 5, 1),
    Sketcher.Constraint("Horizontal", 2, 2, 7, 1),
    Sketcher.Constraint("Vertical", 2, 2, 3, 1),
    Sketcher.Constraint("Diameter", 0, Q("16 mm")),
    Sketcher.Constraint("Radius", 3, Q("4.7 mm")),
    Sketcher.Constraint("Radius", 1, Q("7.25 mm")),
    Sketcher.Constraint("DistanceX", 5, 1, 4, 2, Q("3 mm")),
])
sketch13.setExpression("Constraints[22]", "Params.sketch13_diameter")
sketch13.setExpression("Constraints[23]", "Params.sketch13_radius")
sketch13.setExpression("Constraints[24]", "Params.sketch13_radius2")
pad7 = doc.addObject("PartDesign::Pad", "Pad006")
body.addObject(pad7)
pad7.Profile = sketch13
pad7.setExpression("Length", "Params.pad7_length")

sketch14 = doc.addObject("Sketcher::SketchObject", "Sketch013")
body.addObject(sketch14)
sketch14.AttachmentSupport = (doc.YZ_Plane, [""])
sketch14.MapMode = "FlatFace"
sketch14.addGeometry(Part.Circle(App.Vector(0, 0, 0), App.Vector(0, 0, 1), 1.5), False)
sketch14.addConstraint([
    Sketcher.Constraint("Coincident", 0, 3, -1, 1),
    Sketcher.Constraint("Diameter", 0, Q("3 mm")),
])
sketch14.setExpression("Constraints[1]", "Params.sketch14_diameter")
pad8 = doc.addObject("PartDesign::Pad", "Pad007")
body.addObject(pad8)
pad8.Profile = sketch14
pad8.setExpression("Length", "Params.pad8_length")
pad8.Midplane = True

doc.recompute()
